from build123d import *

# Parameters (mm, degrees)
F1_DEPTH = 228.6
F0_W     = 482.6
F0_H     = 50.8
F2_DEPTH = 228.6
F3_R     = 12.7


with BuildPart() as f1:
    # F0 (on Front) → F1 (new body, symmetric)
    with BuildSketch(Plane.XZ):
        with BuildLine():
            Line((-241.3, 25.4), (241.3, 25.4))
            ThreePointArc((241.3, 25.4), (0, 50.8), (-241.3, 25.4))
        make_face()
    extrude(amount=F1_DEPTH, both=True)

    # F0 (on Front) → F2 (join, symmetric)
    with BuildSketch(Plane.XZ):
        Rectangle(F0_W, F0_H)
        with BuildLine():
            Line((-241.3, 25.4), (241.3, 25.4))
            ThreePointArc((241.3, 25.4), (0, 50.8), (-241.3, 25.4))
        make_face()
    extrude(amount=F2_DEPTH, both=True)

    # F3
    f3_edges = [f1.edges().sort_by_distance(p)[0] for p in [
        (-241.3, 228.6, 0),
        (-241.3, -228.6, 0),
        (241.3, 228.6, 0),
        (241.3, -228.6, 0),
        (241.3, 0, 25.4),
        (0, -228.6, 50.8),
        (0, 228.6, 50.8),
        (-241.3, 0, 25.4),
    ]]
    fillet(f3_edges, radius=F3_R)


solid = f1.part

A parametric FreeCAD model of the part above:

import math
import FreeCAD as App
import Part
import Sketcher

V = App.Vector
Q = App.Units.Quantity


def edges_at(feature, points):
    """Names of the edges that pass closest to the given points."""
    edges = feature.Shape.Edges
    near = lambda p: min(range(len(edges)), key=lambda i: edges[i].distToShape(Part.Vertex(*p))[0])
    return sorted({f"Edge{near(p) + 1}" for p in points})

doc = App.newDocument("Part")
body = doc.addObject("PartDesign::Body", "Body")

# Sketch on XZ plane
sketch1 = doc.addObject("Sketcher::SketchObject", "Sketch")
body.addObject(sketch1)
sketch1.AttachmentSupport = (doc.XZ_Plane, [""])
sketch1.MapMode = "FlatFace"
sketch1.addGeometry(Part.LineSegment(V(-241, 25, 0), V(241, 25, 0)), False)
sketch1.addGeometry(Part.ArcOfCircle(Part.Circle(V(0, -1108, 0), V(0, 0, 1), 1159), math.radians(78), math.radians(102)), False)
sketch1.addConstraint(Sketcher.Constraint("Coincident", 0, 1, 1, 2))
sketch1.addConstraint(Sketcher.Constraint("Coincident", 1, 1, 0, 2))
sketch1.addConstraint(Sketcher.Constraint("Horizontal", 0))
sketch1.addConstraint(Sketcher.Constraint("PointOnObject", 1, 3, -2))
sketch1.addConstraint(Sketcher.Constraint("DistanceX", 0, 1, 0, 2, Q("19 in")))
sketch1.addConstraint(Sketcher.Constraint("DistanceY", -1, 1, 0, 1, Q("1 in")))
sketch1.addConstraint(Sketcher.Constraint("Radius", 1, Q("45.625 in")))
pad1 = doc.addObject("PartDesign::Pad", "Pad")
body.addObject(pad1)
pad1.Profile = sketch1
pad1.Length = Q("18 in")
pad1.Midplane = True

# Sketch on XZ plane
sketch2 = doc.addObject("Sketcher::SketchObject", "Sketch001")
body.addObject(sketch2)
sketch2.AttachmentSupport = (doc.XZ_Plane, [""])
sketch2.MapMode = "FlatFace"
sketch2.addGeometry(Part.LineSegment(V(-241, 25, 0), V(-241, -25, 0)), False)
sketch2.addGeometry(Part.LineSegment(V(-241, -25, 0), V(241, -25, 0)), False)
sketch2.addGeometry(Part.LineSegment(V(241, -25, 0), V(241, 25, 0)), False)
sketch2.addGeometry(Part.ArcOfCircle(Part.Circle(V(0, -1108, 0), V(0, 0, 1), 1159), math.radians(78), math.radians(102)), False)
sketch2.addConstraint(Sketcher.Constraint("Coincident", 0, 2, 1, 1))
sketch2.addConstraint(Sketcher.Constraint("Coincident", 1, 2, 2, 1))
sketch2.addConstraint(Sketcher.Constraint("Coincident", 2, 2, 3, 1))
sketch2.addConstraint(Sketcher.Constraint("Coincident", 3, 2, 0, 1))
sketch2.addConstraint(Sketcher.Constraint("Vertical", 0))
sketch2.addConstraint(Sketcher.Constraint("Horizontal", 1))
sketch2.addConstraint(Sketcher.Constraint("Vertical", 2))
sketch2.addConstraint(Sketcher.Constraint("Symmetric", 0, 2, 2, 2, -1, 1))
sketch2.addConstraint(Sketcher.Constraint("PointOnObject", 3, 3, -2))
sketch2.addConstraint(Sketcher.Constraint("DistanceX", 1, 1, 1, 2, Q("19 in")))
sketch2.addConstraint(Sketcher.Constraint("DistanceY", 0, 2, 0, 1, Q("2 in")))
sketch2.addConstraint(Sketcher.Constraint("Radius", 3, Q("45.625 in")))
pad2 = doc.addObject("PartDesign::Pad", "Pad001")
body.addObject(pad2)
pad2.Profile = sketch2
pad2.Length = Q("18 in")
pad2.Midplane = True
doc.recompute()

fillet = doc.addObject("PartDesign::Fillet", "Fillet")
body.addObject(fillet)
fillet.Base = (pad2, edges_at(pad2, [
    (-241.3, 228.6, 0),
    (-241.3, -228.6, 0),
    (241.3, 228.6, 0),
    (241.3, -228.6, 0),
    (241.3, 0, 25.4),
    (0, -228.6, 50.8),
    (0, 228.6, 50.8),
    (-241.3, 0, 25.4),
]))
fillet.Radius = Q("0.5 in")

doc.recompute()
